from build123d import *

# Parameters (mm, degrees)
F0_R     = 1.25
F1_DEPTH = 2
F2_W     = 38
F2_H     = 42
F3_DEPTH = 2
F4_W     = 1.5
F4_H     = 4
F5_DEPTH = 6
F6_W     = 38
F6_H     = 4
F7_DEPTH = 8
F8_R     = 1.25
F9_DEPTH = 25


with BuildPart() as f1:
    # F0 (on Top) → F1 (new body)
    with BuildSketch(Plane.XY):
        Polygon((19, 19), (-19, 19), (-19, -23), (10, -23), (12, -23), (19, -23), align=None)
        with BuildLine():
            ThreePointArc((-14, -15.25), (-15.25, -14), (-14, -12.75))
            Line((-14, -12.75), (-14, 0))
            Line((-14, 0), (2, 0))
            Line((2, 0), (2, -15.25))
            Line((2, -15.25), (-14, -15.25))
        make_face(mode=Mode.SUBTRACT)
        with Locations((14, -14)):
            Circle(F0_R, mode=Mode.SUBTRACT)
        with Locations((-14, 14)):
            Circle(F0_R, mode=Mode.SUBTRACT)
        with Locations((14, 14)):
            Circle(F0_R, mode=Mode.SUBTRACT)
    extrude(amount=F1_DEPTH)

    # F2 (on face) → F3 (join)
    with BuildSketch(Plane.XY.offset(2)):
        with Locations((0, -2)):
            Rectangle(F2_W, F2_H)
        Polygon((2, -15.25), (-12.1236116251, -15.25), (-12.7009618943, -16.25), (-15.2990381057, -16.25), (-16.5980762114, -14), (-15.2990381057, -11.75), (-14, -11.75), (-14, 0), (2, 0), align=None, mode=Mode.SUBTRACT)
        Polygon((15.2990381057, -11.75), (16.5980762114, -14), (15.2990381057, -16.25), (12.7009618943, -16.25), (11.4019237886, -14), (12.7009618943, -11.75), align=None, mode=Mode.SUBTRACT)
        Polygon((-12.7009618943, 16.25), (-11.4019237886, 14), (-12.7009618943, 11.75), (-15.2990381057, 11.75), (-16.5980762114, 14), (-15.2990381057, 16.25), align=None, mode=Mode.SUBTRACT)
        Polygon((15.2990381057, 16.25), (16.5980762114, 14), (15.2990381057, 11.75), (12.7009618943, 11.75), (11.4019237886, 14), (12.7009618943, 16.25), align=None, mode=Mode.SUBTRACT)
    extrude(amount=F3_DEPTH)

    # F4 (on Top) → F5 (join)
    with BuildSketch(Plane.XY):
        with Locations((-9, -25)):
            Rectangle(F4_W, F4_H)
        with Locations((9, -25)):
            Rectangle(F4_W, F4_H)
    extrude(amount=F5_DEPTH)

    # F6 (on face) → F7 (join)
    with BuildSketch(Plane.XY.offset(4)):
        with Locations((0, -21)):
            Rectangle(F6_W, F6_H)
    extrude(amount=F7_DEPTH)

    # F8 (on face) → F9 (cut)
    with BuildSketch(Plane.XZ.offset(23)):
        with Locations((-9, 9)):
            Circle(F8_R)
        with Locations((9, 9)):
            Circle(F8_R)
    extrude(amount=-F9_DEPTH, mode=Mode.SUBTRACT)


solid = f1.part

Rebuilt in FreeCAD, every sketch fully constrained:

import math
import FreeCAD as App
import Part
import Sketcher
Q = App.Units.Quantity

doc = App.newDocument("Part")
body = doc.addObject("PartDesign::Body", "Body")

sketch1 = doc.addObject("Sketcher::SketchObject", "Sketch")
body.addObject(sketch1)
sketch1.AttachmentSupport = (doc.XY_Plane, [""])
sketch1.MapMode = "FlatFace"
sketch1.addGeometry([
    Part.LineSegment(App.Vector(19, 19, 0), App.Vector(-19, 19, 0)),
    Part.LineSegment(App.Vector(-19, 19, 0), App.Vector(-19, -23, 0)),
    Part.LineSegment(App.Vector(-19, -23, 0), App.Vector(19, -23, 0)),
    Part.LineSegment(App.Vector(19, -23, 0), App.Vector(19, 19, 0)),
    Part.LineSegment(App.Vector(2, -15.2, 0), App.Vector(-14, -15.2, 0)),
    Part.ArcOfCircle(Part.Circle(App.Vector(-14, -14, 0), App.Vector(0, 0, 1), 1.2), math.radians(90), math.radians(270)),
    Part.LineSegment(App.Vector(-14, -12.8, 0), App.Vector(-14, 0, 0)),
    Part.LineSegment(App.Vector(-14, 0, 0), App.Vector(2, 0, 0)),
    Part.LineSegment(App.Vector(2, 0, 0), App.Vector(2, -15.2, 0)),
    Part.Circle(App.Vector(14, -14, 0), App.Vector(0, 0, 1), 1.2),
    Part.Circle(App.Vector(-14, 14, 0), App.Vector(0, 0, 1), 1.2),
    Part.Circle(App.Vector(14, 14, 0), App.Vector(0, 0, 1), 1.2),
], False)
sketch1.addConstraint([
    Sketcher.Constraint("Coincident", 0, 2, 1, 1),
    Sketcher.Constraint("Coincident", 1, 2, 2, 1),
    Sketcher.Constraint("Coincident", 2, 2, 3, 1),
    Sketcher.Constraint("Coincident", 3, 2, 0, 1),
    Sketcher.Constraint("Tangent", 4, 2, 5, 2),
    Sketcher.Constraint("Coincident", 5, 1, 6, 1),
    Sketcher.Constraint("Coincident", 6, 2, 7, 1),
    Sketcher.Constraint("Coincident", 7, 2, 8, 1),
    Sketcher.Constraint("Coincident", 8, 2, 4, 1),
    Sketcher.Constraint("Horizontal", 0),
    Sketcher.Constraint("Vertical", 1),
    Sketcher.Constraint("Horizontal", 2),
    Sketcher.Constraint("Vertical", 3),
    Sketcher.Constraint("Horizontal", 4),
    Sketcher.Constraint("Vertical", 6),
    Sketcher.Constraint("Horizontal", 7),
    Sketcher.Constraint("Vertical", 8),
    Sketcher.Constraint("Equal", 5, 9),
    Sketcher.Constraint("Equal", 9, 10),
    Sketcher.Constraint("Equal", 10, 11),
    Sketcher.Constraint("Symmetric", 9, 3, 10, 3, -1, 1),
    Sketcher.Constraint("Symmetric", 5, 3, 11, 3, -1, 1),
    Sketcher.Constraint("Symmetric", 5, 3, 9, 3, -2),
    Sketcher.Constraint("PointOnObject", 6, 2, -1),
    Sketcher.Constraint("Vertical", 4, 2, 5, 1),
    Sketcher.Constraint("Diameter", 9, 2.5),
    Sketcher.Constraint("DistanceX", 0, 2, 0, 1, 38.0),
    Sketcher.Constraint("DistanceX", 4, 2, 4, 1, 16.0),
    Sketcher.Constraint("DistanceY", 1, 2, 1, 1, 42.0),
    Sketcher.Constraint("DistanceX", 5, 3, -1, 1, 14.0),
    Sketcher.Constraint("DistanceY", 5, 3, -1, 1, 14.0),
    Sketcher.Constraint("DistanceX", 0, 2, -1, 1, 19.0),
    Sketcher.Constraint("DistanceY", -1, 1, 0, 2, 19.0),
])
pad1 = doc.addObject("PartDesign::Pad", "Pad")
body.addObject(pad1)
pad1.Profile = sketch1
pad1.Length = 2

sketch2 = doc.addObject("Sketcher::SketchObject", "Sketch001")
body.addObject(sketch2)
sketch2.AttachmentSupport = (doc.XY_Plane, [""])
sketch2.MapMode = "FlatFace"
sketch2.AttachmentOffset = App.Placement(App.Vector(0, 0, 2), App.Rotation())
sketch2.addGeometry([
    Part.LineSegment(App.Vector(-19, 19, 0), App.Vector(-19, -23, 0)),
    Part.LineSegment(App.Vector(-19, -23, 0), App.Vector(19, -23, 0)),
    Part.LineSegment(App.Vector(19, -23, 0), App.Vector(19, 19, 0)),
    Part.LineSegment(App.Vector(19, 19, 0), App.Vector(-19, 19, 0)),
    Part.LineSegment(App.Vector(2, 0, 0), App.Vector(2, -15.2, 0)),
    Part.LineSegment(App.Vector(2, -15.2, 0), App.Vector(-12.1, -15.2, 0)),
    Part.LineSegment(App.Vector(-12.1, -15.2, 0), App.Vector(-12.7, -16.2, 0)),
    Part.LineSegment(App.Vector(-12.7, -16.2, 0), App.Vector(-15.3, -16.2, 0)),
    Part.LineSegment(App.Vector(-15.3, -16.2, 0), App.Vector(-16.6, -14, 0)),
    Part.LineSegment(App.Vector(-16.6, -14, 0), App.Vector(-15.3, -11.8, 0)),
    Part.LineSegment(App.Vector(-15.3, -11.8, 0), App.Vector(-14, -11.8, 0)),
    Part.LineSegment(App.Vector(-14, -11.8, 0), App.Vector(-14, 0, 0)),
    Part.LineSegment(App.Vector(-14, 0, 0), App.Vector(2, 0, 0)),
    Part.LineSegment(App.Vector(12.7, -11.8, 0), App.Vector(15.3, -11.8, 0)),
    Part.LineSegment(App.Vector(15.3, -11.8, 0), App.Vector(16.6, -14, 0)),
    Part.LineSegment(App.Vector(16.6, -14, 0), App.Vector(15.3, -16.2, 0)),
    Part.LineSegment(App.Vector(15.3, -16.2, 0), App.Vector(12.7, -16.2, 0)),
    Part.LineSegment(App.Vector(12.7, -16.2, 0), App.Vector(11.4, -14, 0)),
    Part.LineSegment(App.Vector(11.4, -14, 0), App.Vector(12.7, -11.8, 0)),
    Part.LineSegment(App.Vector(-15.3, 16.2, 0), App.Vector(-12.7, 16.2, 0)),
    Part.LineSegment(App.Vector(-12.7, 16.2, 0), App.Vector(-11.4, 14, 0)),
    Part.LineSegment(App.Vector(-11.4, 14, 0), App.Vector(-12.7, 11.8, 0)),
    Part.LineSegment(App.Vector(-12.7, 11.8, 0), App.Vector(-15.3, 11.8, 0)),
    Part.LineSegment(App.Vector(-15.3, 11.8, 0), App.Vector(-16.6, 14, 0)),
    Part.LineSegment(App.Vector(-16.6, 14, 0), App.Vector(-15.3, 16.2, 0)),
    Part.LineSegment(App.Vector(12.7, 16.2, 0), App.Vector(15.3, 16.2, 0)),
    Part.LineSegment(App.Vector(15.3, 16.2, 0), App.Vector(16.6, 14, 0)),
    Part.LineSegment(App.Vector(16.6, 14, 0), App.Vector(15.3, 11.8, 0)),
    Part.LineSegment(App.Vector(15.3, 11.8, 0), App.Vector(12.7, 11.8, 0)),
    Part.LineSegment(App.Vector(12.7, 11.8, 0), App.Vector(11.4, 14, 0)),
    Part.LineSegment(App.Vector(11.4, 14, 0), App.Vector(12.7, 16.2, 0)),
], False)
sketch2.addConstraint([
    Sketcher.Constraint("Coincident", 0, 2, 1, 1),
    Sketcher.Constraint("Coincident", 1, 2, 2, 1),
    Sketcher.Constraint("Coincident", 2, 2, 3, 1),
    Sketcher.Constraint("Coincident", 3, 2, 0, 1),
    Sketcher.Constraint("Coincident", 4, 2, 5, 1),
    Sketcher.Constraint("Coincident", 5, 2, 6, 1),
    Sketcher.Constraint("Coincident", 6, 2, 7, 1),
    Sketcher.Constraint("Coincident", 7, 2, 8, 1),
    Sketcher.Constraint("Coincident", 8, 2, 9, 1),
    Sketcher.Constraint("Coincident", 9, 2, 10, 1),
    Sketcher.Constraint("Coincident", 10, 2, 11, 1),
    Sketcher.Constraint("Coincident", 11, 2, 12, 1),
    Sketcher.Constraint("Coincident", 12, 2, 4, 1),
    Sketcher.Constraint("Coincident", 13, 2, 14, 1),
    Sketcher.Constraint("Coincident", 14, 2, 15, 1),
    Sketcher.Constraint("Coincident", 15, 2, 16, 1),
    Sketcher.Constraint("Coincident", 16, 2, 17, 1),
    Sketcher.Constraint("Coincident", 17, 2, 18, 1),
    Sketcher.Constraint("Coincident", 18, 2, 13, 1),
    Sketcher.Constraint("Coincident", 19, 2, 20, 1),
    Sketcher.Constraint("Coincident", 20, 2, 21, 1),
    Sketcher.Constraint("Coincident", 21, 2, 22, 1),
    Sketcher.Constraint("Coincident", 22, 2, 23, 1),
    Sketcher.Constraint("Coincident", 23, 2, 24, 1),
    Sketcher.Constraint("Coincident", 24, 2, 19, 1),
    Sketcher.Constraint("Coincident", 25, 2, 26, 1),
    Sketcher.Constraint("Coincident", 26, 2, 27, 1),
    Sketcher.Constraint("Coincident", 27, 2, 28, 1),
    Sketcher.Constraint("Coincident", 28, 2, 29, 1),
    Sketcher.Constraint("Coincident", 29, 2, 30, 1),
    Sketcher.Constraint("Coincident", 30, 2, 25, 1),
    Sketcher.Constraint("Vertical", 0),
    Sketcher.Constraint("Horizontal", 1),
    Sketcher.Constraint("Vertical", 2),
    Sketcher.Constraint("Horizontal", 3),
    Sketcher.Constraint("Vertical", 4),
    Sketcher.Constraint("Horizontal", 5),
    Sketcher.Constraint("Horizontal", 7),
    Sketcher.Constraint("Horizontal", 10),
    Sketcher.Constraint("Vertical", 11),
    Sketcher.Constraint("Horizontal", 12),
    Sketcher.Constraint("Horizontal", 13),
    Sketcher.Constraint("Horizontal", 16),
    Sketcher.Constraint("Horizontal", 19),
    Sketcher.Constraint("Horizontal", 22),
    Sketcher.Constraint("Horizontal", 25),
    Sketcher.Constraint("Horizontal", 28),
    Sketcher.Constraint("Symmetric", 16, 2, 19, 2, -1, 1),
    Sketcher.Constraint("Symmetric", 17, 2, 20, 2, -1, 1),
    Sketcher.Constraint("Symmetric", 18, 2, 21, 2, -1, 1),
    Sketcher.Constraint("Symmetric", 14, 2, 23, 2, -1, 1),
    Sketcher.Constraint("Symmetric", 7, 2, 25, 2, -1, 1),
    Sketcher.Constraint("Symmetric", 8, 2, 26, 2, -1, 1),
    Sketcher.Constraint("Symmetric", 9, 2, 27, 2, -1, 1),
    Sketcher.Constraint("Symmetric", 9, 2, 13, 2, -2),
    Sketcher.Constraint("Symmetric", 8, 2, 14, 2, -2),
    Sketcher.Constraint("Symmetric", 7, 2, 15, 2, -2),
    Sketcher.Constraint("Symmetric", 20, 2, 29, 2, -2),
    Sketcher.Constraint("PointOnObject", 11, 2, -1),
    Sketcher.Constraint("Parallel", 6, 9),
    Sketcher.Constraint("Parallel", 8, 14),
    Sketcher.Constraint("Parallel", 14, 17),
    Sketcher.Constraint("Parallel", 15, 18),
    Sketcher.Constraint("Parallel", 20, 23),
    Sketcher.Constraint("Parallel", 21, 24),
    Sketcher.Constraint("Parallel", 26, 29),
    Sketcher.Constraint("Parallel", 27, 30),
    Sketcher.Constraint("Horizontal", 14, 2, 17, 2),
    Sketcher.Constraint("Vertical", 7, 2, 9, 2),
    Sketcher.Constraint("Vertical", 6, 2, 19, 2),
    Sketcher.Constraint("DistanceX", 1, 1, 1, 2, 38.0),
    Sketcher.Constraint("DistanceX", 12, 1, 12, 2, 16.0),
    Sketcher.Constraint("DistanceY", 0, 2, 0, 1, 42.0),
    Sketcher.Constraint("Angle", 6, Q("-120 deg")),
    Sketcher.Constraint("DistanceX", 0, 2, -1, 1, 19.0),
    Sketcher.Constraint("DistanceY", 0, 2, -1, 1, 23.0),
    Sketcher.Constraint("DistanceX", -1, 1, 4, 2, 2.0),
    Sketcher.Constraint("DistanceY", 8, 2, -1, 1, 14.0),
    Sketcher.Constraint("DistanceY", 6, 2, 5, 2, 1.0),
    Sketcher.Constraint("DistanceX", 6, 2, 13, 2, 28.0),
    Sketcher.Constraint("DistanceY", 4, 2, 4, 1, 15.25),
    Sketcher.Constraint("DistanceX", 5, 2, 5, 1, 14.123612),
])
pad2 = doc.addObject("PartDesign::Pad", "Pad001")
body.addObject(pad2)
pad2.Profile = sketch2
pad2.Length = 2

sketch3 = doc.addObject("Sketcher::SketchObject", "Sketch002")
body.addObject(sketch3)
sketch3.AttachmentSupport = (doc.XY_Plane, [""])
sketch3.MapMode = "FlatFace"
sketch3.addGeometry([
    Part.LineSegment(App.Vector(-9.8, -23, 0), App.Vector(-9.8, -27, 0)),
    Part.LineSegment(App.Vector(-9.8, -27, 0), App.Vector(-8.2, -27, 0)),
    Part.LineSegment(App.Vector(-8.2, -27, 0), App.Vector(-8.2, -23, 0)),
    Part.LineSegment(App.Vector(-8.2, -23, 0), App.Vector(-9.8, -23, 0)),
    Part.LineSegment(App.Vector(8.2, -23, 0), App.Vector(8.2, -27, 0)),
    Part.LineSegment(App.Vector(8.2, -27, 0), App.Vector(9.8, -27, 0)),
    Part.LineSegment(App.Vector(9.8, -27, 0), App.Vector(9.8, -23, 0)),
    Part.LineSegment(App.Vector(9.8, -23, 0), App.Vector(8.2, -23, 0)),
], False)
sketch3.addConstraint([
    Sketcher.Constraint("Coincident", 0, 2, 1, 1),
    Sketcher.Constraint("Coincident", 1, 2, 2, 1),
    Sketcher.Constraint("Coincident", 2, 2, 3, 1),
    Sketcher.Constraint("Coincident", 3, 2, 0, 1),
    Sketcher.Constraint("Coincident", 4, 2, 5, 1),
    Sketcher.Constraint("Coincident", 5, 2, 6, 1),
    Sketcher.Constraint("Coincident", 6, 2, 7, 1),
    Sketcher.Constraint("Coincident", 7, 2, 4, 1),
    Sketcher.Constraint("Vertical", 0),
    Sketcher.Constraint("Horizontal", 1),
    Sketcher.Constraint("Vertical", 2),
    Sketcher.Constraint("Horizontal", 3),
    Sketcher.Constraint("Vertical", 4),
    Sketcher.Constraint("Horizontal", 5),
    Sketcher.Constraint("Vertical", 6),
    Sketcher.Constraint("Horizontal", 7),
    Sketcher.Constraint("Symmetric", 1, 2, 4, 2, -2),
    Sketcher.Constraint("Symmetric", 3, 2, 6, 2, -2),
    Sketcher.Constraint("DistanceY", 0, 2, 0, 1, 4.0),
    Sketcher.Constraint("DistanceX", 1, 1, 1, 2, 1.5),
    Sketcher.Constraint("DistanceY", 0, 2, -1, 1, 27.0),
    Sketcher.Constraint("DistanceX", 0, 2, 4, 2, 18.0),
])
pad3 = doc.addObject("PartDesign::Pad", "Pad002")
body.addObject(pad3)
pad3.Profile = sketch3
pad3.Length = 6

sketch4 = doc.addObject("Sketcher::SketchObject", "Sketch003")
body.addObject(sketch4)
sketch4.AttachmentSupport = (doc.XY_Plane, [""])
sketch4.MapMode = "FlatFace"
sketch4.AttachmentOffset = App.Placement(App.Vector(0, 0, 4), App.Rotation())
sketch4.addGeometry([
    Part.LineSegment(App.Vector(-19, -19, 0), App.Vector(-19, -23, 0)),
    Part.LineSegment(App.Vector(-19, -23, 0), App.Vector(19, -23, 0)),
    Part.LineSegment(App.Vector(19, -23, 0), App.Vector(19, -19, 0)),
    Part.LineSegment(App.Vector(19, -19, 0), App.Vector(-19, -19, 0)),
], False)
sketch4.addConstraint([
    Sketcher.Constraint("Coincident", 0, 2, 1, 1),
    Sketcher.Constraint("Coincident", 1, 2, 2, 1),
    Sketcher.Constraint("Coincident", 2, 2, 3, 1),
    Sketcher.Constraint("Coincident", 3, 2, 0, 1),
    Sketcher.Constraint("Vertical", 0),
    Sketcher.Constraint("Horizontal", 1),
    Sketcher.Constraint("Vertical", 2),
    Sketcher.Constraint("Horizontal", 3),
    Sketcher.Constraint("DistanceX", 1, 1, 1, 2, 38.0),
    Sketcher.Constraint("DistanceY", 0, 2, 0, 1, 4.0),
    Sketcher.Constraint("DistanceX", 0, 2, -1, 1, 19.0),
    Sketcher.Constraint("DistanceY", 0, 2, -1, 1, 23.0),
])
pad4 = doc.addObject("PartDesign::Pad", "Pad003")
body.addObject(pad4)
pad4.Profile = sketch4
pad4.Length = 8

sketch5 = doc.addObject("Sketcher::SketchObject", "Sketch004")
body.addObject(sketch5)
sketch5.AttachmentSupport = (doc.XZ_Plane, [""])
sketch5.MapMode = "FlatFace"
sketch5.AttachmentOffset = App.Placement(App.Vector(0, 0, 23), App.Rotation())
sketch5.addGeometry([
    Part.Circle(App.Vector(-9, 9, 0), App.Vector(0, 0, 1), 1.2),
    Part.Circle(App.Vector(9, 9, 0), App.Vector(0, 0, 1), 1.2),
], False)
sketch5.addConstraint([
    Sketcher.Constraint("Equal", 0, 1),
    Sketcher.Constraint("Symmetric", 0, 3, 1, 3, -2),
    Sketcher.Constraint("Diameter", 0, 2.5),
    Sketcher.Constraint("DistanceX", 0, 3, -1, 1, 9.0),
    Sketcher.Constraint("DistanceY", -1, 1, 0, 3, 9.0),
])
pocket1 = doc.addObject("PartDesign::Pocket", "Pocket")
body.addObject(pocket1)
pocket1.Profile = sketch5
pocket1.Length = 25

doc.recompute()
